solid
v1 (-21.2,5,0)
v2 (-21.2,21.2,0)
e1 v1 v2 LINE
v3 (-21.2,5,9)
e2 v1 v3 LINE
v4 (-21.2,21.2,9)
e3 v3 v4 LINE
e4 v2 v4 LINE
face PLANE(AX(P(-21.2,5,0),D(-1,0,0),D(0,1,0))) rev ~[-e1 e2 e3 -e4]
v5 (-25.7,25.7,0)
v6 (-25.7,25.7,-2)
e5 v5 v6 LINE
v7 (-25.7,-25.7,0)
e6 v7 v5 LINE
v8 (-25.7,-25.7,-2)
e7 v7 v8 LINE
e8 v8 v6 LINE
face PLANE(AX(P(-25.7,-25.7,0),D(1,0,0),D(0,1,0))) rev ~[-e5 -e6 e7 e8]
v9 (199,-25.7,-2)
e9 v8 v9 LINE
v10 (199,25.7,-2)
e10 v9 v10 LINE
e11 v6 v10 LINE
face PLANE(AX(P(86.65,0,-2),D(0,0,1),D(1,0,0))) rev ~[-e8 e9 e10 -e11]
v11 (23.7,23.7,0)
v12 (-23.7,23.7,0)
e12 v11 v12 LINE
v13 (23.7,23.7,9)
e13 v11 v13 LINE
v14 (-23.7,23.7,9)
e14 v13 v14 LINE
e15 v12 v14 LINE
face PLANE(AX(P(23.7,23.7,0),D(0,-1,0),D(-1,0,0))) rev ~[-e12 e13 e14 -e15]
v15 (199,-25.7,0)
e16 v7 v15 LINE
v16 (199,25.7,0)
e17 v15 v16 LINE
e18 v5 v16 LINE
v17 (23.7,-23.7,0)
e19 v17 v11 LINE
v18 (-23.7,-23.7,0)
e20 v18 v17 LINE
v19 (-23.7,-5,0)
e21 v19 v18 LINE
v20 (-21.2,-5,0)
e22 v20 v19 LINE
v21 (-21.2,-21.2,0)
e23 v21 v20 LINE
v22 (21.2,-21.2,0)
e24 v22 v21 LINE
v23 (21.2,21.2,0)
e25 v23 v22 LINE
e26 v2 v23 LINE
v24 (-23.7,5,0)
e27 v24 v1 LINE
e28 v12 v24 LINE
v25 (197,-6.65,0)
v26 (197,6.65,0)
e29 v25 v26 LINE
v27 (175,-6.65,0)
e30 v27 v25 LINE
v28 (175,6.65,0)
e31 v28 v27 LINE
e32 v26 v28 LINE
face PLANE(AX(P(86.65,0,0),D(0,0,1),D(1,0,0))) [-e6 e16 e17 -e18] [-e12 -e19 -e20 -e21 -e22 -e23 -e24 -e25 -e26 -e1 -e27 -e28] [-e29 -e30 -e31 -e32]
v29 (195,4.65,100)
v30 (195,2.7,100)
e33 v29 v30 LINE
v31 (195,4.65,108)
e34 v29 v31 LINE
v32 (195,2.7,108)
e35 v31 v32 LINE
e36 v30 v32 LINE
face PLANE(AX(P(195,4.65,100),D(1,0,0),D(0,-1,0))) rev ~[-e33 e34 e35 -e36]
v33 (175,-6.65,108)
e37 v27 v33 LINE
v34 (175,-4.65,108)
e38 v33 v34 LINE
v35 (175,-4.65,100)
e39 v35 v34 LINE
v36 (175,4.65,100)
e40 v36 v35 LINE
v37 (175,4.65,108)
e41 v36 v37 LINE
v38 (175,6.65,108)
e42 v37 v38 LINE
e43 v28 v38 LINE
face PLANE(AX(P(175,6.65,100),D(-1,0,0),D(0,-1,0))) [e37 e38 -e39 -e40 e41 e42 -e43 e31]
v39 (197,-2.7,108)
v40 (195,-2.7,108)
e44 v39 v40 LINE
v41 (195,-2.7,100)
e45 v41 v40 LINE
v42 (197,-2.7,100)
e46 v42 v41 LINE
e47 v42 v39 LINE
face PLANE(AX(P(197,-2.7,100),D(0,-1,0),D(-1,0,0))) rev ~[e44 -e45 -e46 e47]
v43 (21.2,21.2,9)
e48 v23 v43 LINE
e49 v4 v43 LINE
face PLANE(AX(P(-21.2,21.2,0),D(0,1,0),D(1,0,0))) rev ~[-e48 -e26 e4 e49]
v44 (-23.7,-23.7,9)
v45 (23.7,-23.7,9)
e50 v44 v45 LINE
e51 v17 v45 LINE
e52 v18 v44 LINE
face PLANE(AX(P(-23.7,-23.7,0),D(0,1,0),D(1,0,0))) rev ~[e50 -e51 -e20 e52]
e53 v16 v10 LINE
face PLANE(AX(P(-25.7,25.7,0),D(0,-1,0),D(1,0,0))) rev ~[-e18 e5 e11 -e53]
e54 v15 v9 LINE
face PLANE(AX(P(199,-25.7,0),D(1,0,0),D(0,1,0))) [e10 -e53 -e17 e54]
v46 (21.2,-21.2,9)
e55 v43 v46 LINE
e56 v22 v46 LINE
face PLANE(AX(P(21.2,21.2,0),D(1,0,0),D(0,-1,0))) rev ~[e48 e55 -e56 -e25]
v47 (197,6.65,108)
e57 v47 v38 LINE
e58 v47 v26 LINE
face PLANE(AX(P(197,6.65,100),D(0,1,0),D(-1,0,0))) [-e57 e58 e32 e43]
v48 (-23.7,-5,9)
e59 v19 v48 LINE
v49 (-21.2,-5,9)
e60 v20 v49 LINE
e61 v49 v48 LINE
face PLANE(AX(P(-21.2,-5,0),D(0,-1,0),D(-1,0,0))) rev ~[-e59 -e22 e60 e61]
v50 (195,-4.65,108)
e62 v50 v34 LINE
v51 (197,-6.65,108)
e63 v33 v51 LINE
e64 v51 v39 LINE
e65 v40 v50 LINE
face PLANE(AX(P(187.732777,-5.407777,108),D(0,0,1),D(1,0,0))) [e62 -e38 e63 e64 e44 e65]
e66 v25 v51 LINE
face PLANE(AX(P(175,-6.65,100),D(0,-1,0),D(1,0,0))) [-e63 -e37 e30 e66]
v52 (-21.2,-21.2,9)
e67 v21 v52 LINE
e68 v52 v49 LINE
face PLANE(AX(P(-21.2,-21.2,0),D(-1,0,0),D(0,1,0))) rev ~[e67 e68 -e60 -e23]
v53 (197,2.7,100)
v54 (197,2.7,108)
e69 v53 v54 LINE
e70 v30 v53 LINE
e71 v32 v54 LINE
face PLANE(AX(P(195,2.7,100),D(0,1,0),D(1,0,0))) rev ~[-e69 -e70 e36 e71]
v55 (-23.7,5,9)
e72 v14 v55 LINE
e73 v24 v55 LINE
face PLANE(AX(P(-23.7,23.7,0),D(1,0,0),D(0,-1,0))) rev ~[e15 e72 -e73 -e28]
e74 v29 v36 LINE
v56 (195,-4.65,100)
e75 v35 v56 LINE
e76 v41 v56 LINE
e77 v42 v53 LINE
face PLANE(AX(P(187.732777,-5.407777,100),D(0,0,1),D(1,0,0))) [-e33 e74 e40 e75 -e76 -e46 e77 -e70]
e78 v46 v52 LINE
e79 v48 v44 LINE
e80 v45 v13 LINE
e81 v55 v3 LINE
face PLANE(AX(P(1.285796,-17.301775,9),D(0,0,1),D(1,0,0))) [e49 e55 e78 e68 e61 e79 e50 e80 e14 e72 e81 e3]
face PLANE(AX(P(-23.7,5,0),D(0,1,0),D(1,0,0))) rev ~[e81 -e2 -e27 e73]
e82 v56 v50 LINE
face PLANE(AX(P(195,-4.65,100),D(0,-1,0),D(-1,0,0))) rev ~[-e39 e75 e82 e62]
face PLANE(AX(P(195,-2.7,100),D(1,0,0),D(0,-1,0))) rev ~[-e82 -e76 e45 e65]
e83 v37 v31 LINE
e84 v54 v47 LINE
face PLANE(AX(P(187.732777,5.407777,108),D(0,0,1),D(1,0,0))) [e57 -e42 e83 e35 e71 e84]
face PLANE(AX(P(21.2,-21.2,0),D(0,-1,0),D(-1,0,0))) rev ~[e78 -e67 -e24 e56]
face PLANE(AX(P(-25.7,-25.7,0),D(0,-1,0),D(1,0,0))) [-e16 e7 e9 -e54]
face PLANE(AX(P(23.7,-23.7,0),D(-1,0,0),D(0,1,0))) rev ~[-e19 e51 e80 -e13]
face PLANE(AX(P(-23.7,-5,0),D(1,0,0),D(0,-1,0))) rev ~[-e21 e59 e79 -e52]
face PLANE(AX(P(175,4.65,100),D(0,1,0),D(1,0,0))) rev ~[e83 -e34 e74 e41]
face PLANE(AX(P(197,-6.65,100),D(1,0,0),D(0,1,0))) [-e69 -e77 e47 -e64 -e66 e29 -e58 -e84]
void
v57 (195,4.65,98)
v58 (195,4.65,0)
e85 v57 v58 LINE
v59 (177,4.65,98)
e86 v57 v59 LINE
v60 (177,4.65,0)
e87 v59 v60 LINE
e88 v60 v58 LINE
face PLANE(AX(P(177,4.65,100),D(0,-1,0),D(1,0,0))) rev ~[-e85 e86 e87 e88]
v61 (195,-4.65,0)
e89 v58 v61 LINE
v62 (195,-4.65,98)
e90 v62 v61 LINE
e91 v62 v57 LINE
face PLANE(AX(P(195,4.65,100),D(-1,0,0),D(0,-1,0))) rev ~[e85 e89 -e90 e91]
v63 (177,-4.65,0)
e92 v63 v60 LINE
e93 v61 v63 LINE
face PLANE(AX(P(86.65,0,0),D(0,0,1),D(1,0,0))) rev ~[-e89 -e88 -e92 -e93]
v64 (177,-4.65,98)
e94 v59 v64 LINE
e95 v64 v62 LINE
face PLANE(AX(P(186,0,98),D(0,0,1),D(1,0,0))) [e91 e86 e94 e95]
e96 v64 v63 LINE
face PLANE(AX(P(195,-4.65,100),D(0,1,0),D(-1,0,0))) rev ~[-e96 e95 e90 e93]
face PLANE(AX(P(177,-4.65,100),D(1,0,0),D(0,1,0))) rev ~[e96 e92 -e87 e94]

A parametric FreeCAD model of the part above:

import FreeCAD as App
import Part
import Sketcher
from FreeCAD import Vector
Q = App.Units.Quantity

doc = App.newDocument("Part")
body = doc.addObject("PartDesign::Body", "Body")

# Sketch on XY plane
sketch1 = doc.addObject("Sketcher::SketchObject", "Sketch")
body.addObject(sketch1)
sketch1.AttachmentSupport = (doc.XY_Plane, [""])
sketch1.MapMode = "FlatFace"
sketch1.addGeometry(Part.LineSegment(Vector(-23.7, -23.7, 0), Vector(23.7, -23.7, 0)), False)
sketch1.addGeometry(Part.LineSegment(Vector(23.7, -23.7, 0), Vector(23.7, 23.7, 0)), False)
sketch1.addGeometry(Part.LineSegment(Vector(23.7, 23.7, 0), Vector(-23.7, 23.7, 0)), False)
sketch1.addGeometry(Part.LineSegment(Vector(-23.7, 23.7, 0), Vector(-23.7, 5, 0)), False)
sketch1.addGeometry(Part.LineSegment(Vector(-23.7, 5, 0), Vector(-21.2, 5, 0)), False)
sketch1.addGeometry(Part.LineSegment(Vector(-21.2, 5, 0), Vector(-21.2, 21.2, 0)), False)
sketch1.addGeometry(Part.LineSegment(Vector(-21.2, 21.2, 0), Vector(21.2, 21.2, 0)), False)
sketch1.addGeometry(Part.LineSegment(Vector(21.2, 21.2, 0), Vector(21.2, -21.2, 0)), False)
sketch1.addGeometry(Part.LineSegment(Vector(21.2, -21.2, 0), Vector(-21.2, -21.2, 0)), False)
sketch1.addGeometry(Part.LineSegment(Vector(-21.2, -21.2, 0), Vector(-21.2, -5, 0)), False)
sketch1.addGeometry(Part.LineSegment(Vector(-21.2, -5, 0), Vector(-23.7, -5, 0)), False)
sketch1.addGeometry(Part.LineSegment(Vector(-23.7, -5, 0), Vector(-23.7, -23.7, 0)), False)
sketch1.addConstraint(Sketcher.Constraint("Coincident", 0, 2, 1, 1))
sketch1.addConstraint(Sketcher.Constraint("Coincident", 1, 2, 2, 1))
sketch1.addConstraint(Sketcher.Constraint("Coincident", 2, 2, 3, 1))
sketch1.addConstraint(Sketcher.Constraint("Coincident", 3, 2, 4, 1))
sketch1.addConstraint(Sketcher.Constraint("Coincident", 4, 2, 5, 1))
sketch1.addConstraint(Sketcher.Constraint("Coincident", 5, 2, 6, 1))
sketch1.addConstraint(Sketcher.Constraint("Coincident", 6, 2, 7, 1))
sketch1.addConstraint(Sketcher.Constraint("Coincident", 7, 2, 8, 1))
sketch1.addConstraint(Sketcher.Constraint("Coincident", 8, 2, 9, 1))
sketch1.addConstraint(Sketcher.Constraint("Coincident", 9, 2, 10, 1))
sketch1.addConstraint(Sketcher.Constraint("Coincident", 10, 2, 11, 1))
sketch1.addConstraint(Sketcher.Constraint("Coincident", 11, 2, 0, 1))
sketch1.addConstraint(Sketcher.Constraint("Horizontal", 0))
sketch1.addConstraint(Sketcher.Constraint("Vertical", 1))
sketch1.addConstraint(Sketcher.Constraint("Horizontal", 2))
sketch1.addConstraint(Sketcher.Constraint("Vertical", 3))
sketch1.addConstraint(Sketcher.Constraint("Horizontal", 4))
sketch1.addConstraint(Sketcher.Constraint("Vertical", 5))
sketch1.addConstraint(Sketcher.Constraint("Horizontal", 6))
sketch1.addConstraint(Sketcher.Constraint("Vertical", 7))
sketch1.addConstraint(Sketcher.Constraint("Horizontal", 8))
sketch1.addConstraint(Sketcher.Constraint("Vertical", 9))
sketch1.addConstraint(Sketcher.Constraint("Horizontal", 10))
sketch1.addConstraint(Sketcher.Constraint("Vertical", 11))
sketch1.addConstraint(Sketcher.Constraint("Symmetric", 0, 2, 2, 2, -1, 1))
sketch1.addConstraint(Sketcher.Constraint("Symmetric", 5, 2, 7, 2, -1, 1))
sketch1.addConstraint(Sketcher.Constraint("Symmetric", 4, 2, 9, 2, -1))
sketch1.addConstraint(Sketcher.Constraint("Vertical", 3, 2, 10, 2))
sketch1.addConstraint(Sketcher.Constraint("Equal", 2, 1))
sketch1.addConstraint(Sketcher.Constraint("Equal", 8, 7))
sketch1.addConstraint(Sketcher.Constraint("DistanceX", 0, 1, 0, 2, Q("47.4 mm")))
sketch1.addConstraint(Sketcher.Constraint("DistanceX", 4, 1, 4, 2, Q("2.5 mm")))
sketch1.addConstraint(Sketcher.Constraint("DistanceY", 3, 2, 3, 1, Q("18.7 mm")))
pad1 = doc.addObject("PartDesign::Pad", "Pad")
body.addObject(pad1)
pad1.Profile = sketch1
pad1.Length = 9
body2 = doc.addObject("PartDesign::Body", "Body001")

# Sketch on XY plane
sketch2 = doc.addObject("Sketcher::SketchObject", "Sketch001")
body2.addObject(sketch2)
sketch2.AttachmentSupport = (doc.getObject("XY_Plane001"), [""])
sketch2.MapMode = "FlatFace"
sketch2.AttachmentOffset = App.Placement(Vector(0, 0, 100), App.Rotation())
sketch2.addGeometry(Part.LineSegment(Vector(195, -4.7, 0), Vector(175, -4.7, 0)), False)
sketch2.addGeometry(Part.LineSegment(Vector(175, -4.7, 0), Vector(175, -6.7, 0)), False)
sketch2.addGeometry(Part.LineSegment(Vector(175, -6.7, 0), Vector(197, -6.7, 0)), False)
sketch2.addGeometry(Part.LineSegment(Vector(197, -6.7, 0), Vector(197, -2.7, 0)), False)
sketch2.addGeometry(Part.LineSegment(Vector(197, -2.7, 0), Vector(195, -2.7, 0)), False)
sketch2.addGeometry(Part.LineSegment(Vector(195, -2.7, 0), Vector(195, -4.7, 0)), False)
sketch2.addConstraint(Sketcher.Constraint("Coincident", 0, 2, 1, 1))
sketch2.addConstraint(Sketcher.Constraint("Coincident", 1, 2, 2, 1))
sketch2.addConstraint(Sketcher.Constraint("Coincident", 2, 2, 3, 1))
sketch2.addConstraint(Sketcher.Constraint("Coincident", 3, 2, 4, 1))
sketch2.addConstraint(Sketcher.Constraint("Coincident", 4, 2, 5, 1))
sketch2.addConstraint(Sketcher.Constraint("Coincident", 5, 2, 0, 1))
sketch2.addConstraint(Sketcher.Constraint("Horizontal", 0))
sketch2.addConstraint(Sketcher.Constraint("Vertical", 1))
sketch2.addConstraint(Sketcher.Constraint("Horizontal", 2))
sketch2.addConstraint(Sketcher.Constraint("Vertical", 3))
sketch2.addConstraint(Sketcher.Constraint("Horizontal", 4))
sketch2.addConstraint(Sketcher.Constraint("Vertical", 5))
sketch2.addConstraint(Sketcher.Constraint("Equal", 4, 1))
sketch2.addConstraint(Sketcher.Constraint("DistanceX", 0, 2, 0, 1, Q("20 mm")))
sketch2.addConstraint(Sketcher.Constraint("DistanceX", 2, 1, 2, 2, Q("22 mm")))
sketch2.addConstraint(Sketcher.Constraint("DistanceX", -1, 1, 0, 2, Q("175 mm")))
sketch2.addConstraint(Sketcher.Constraint("DistanceY", 3, 1, 3, 2, Q("3.95 mm")))
sketch2.addConstraint(Sketcher.Constraint("DistanceY", 3, 2, -1, 1, Q("2.7 mm")))
pad2 = doc.addObject("PartDesign::Pad", "Pad001")
body2.addObject(pad2)
pad2.Profile = sketch2
pad2.Length = 8
body3 = doc.addObject("PartDesign::Body", "Body002")

# Sketch on XY plane
sketch3 = doc.addObject("Sketcher::SketchObject", "Sketch002")
body3.addObject(sketch3)
sketch3.AttachmentSupport = (doc.getObject("XY_Plane002"), [""])
sketch3.MapMode = "FlatFace"
sketch3.AttachmentOffset = App.Placement(Vector(0, 0, 100), App.Rotation())
sketch3.addGeometry(Part.LineSegment(Vector(195, 4.7, 0), Vector(195, 2.7, 0)), False)
sketch3.addGeometry(Part.LineSegment(Vector(195, 2.7, 0), Vector(197, 2.7, 0)), False)
sketch3.addGeometry(Part.LineSegment(Vector(197, 2.7, 0), Vector(197, 6.7, 0)), False)
sketch3.addGeometry(Part.LineSegment(Vector(197, 6.7, 0), Vector(175, 6.7, 0)), False)
sketch3.addGeometry(Part.LineSegment(Vector(175, 6.7, 0), Vector(175, 4.7, 0)), False)
sketch3.addGeometry(Part.LineSegment(Vector(175, 4.7, 0), Vector(195, 4.7, 0)), False)
sketch3.addConstraint(Sketcher.Constraint("Coincident", 0, 2, 1, 1))
sketch3.addConstraint(Sketcher.Constraint("Coincident", 1, 2, 2, 1))
sketch3.addConstraint(Sketcher.Constraint("Coincident", 2, 2, 3, 1))
sketch3.addConstraint(Sketcher.Constraint("Coincident", 3, 2, 4, 1))
sketch3.addConstraint(Sketcher.Constraint("Coincident", 4, 2, 5, 1))
sketch3.addConstraint(Sketcher.Constraint("Coincident", 5, 2, 0, 1))
sketch3.addConstraint(Sketcher.Constraint("Vertical", 0))
sketch3.addConstraint(Sketcher.Constraint("Horizontal", 1))
sketch3.addConstraint(Sketcher.Constraint("Vertical", 2))
sketch3.addConstraint(Sketcher.Constraint("Horizontal", 3))
sketch3.addConstraint(Sketcher.Constraint("Vertical", 4))
sketch3.addConstraint(Sketcher.Constraint("Horizontal", 5))
sketch3.addConstraint(Sketcher.Constraint("Equal", 1, 4))
sketch3.addConstraint(Sketcher.Constraint("DistanceX", 1, 1, 1, 2, Q("2 mm")))
sketch3.addConstraint(Sketcher.Constraint("DistanceX", 3, 2, 3, 1, Q("22 mm")))
sketch3.addConstraint(Sketcher.Constraint("DistanceX", -1, 1, 0, 2, Q("195 mm")))
sketch3.addConstraint(Sketcher.Constraint("DistanceY", 0, 2, 0, 1, Q("1.95 mm")))
sketch3.addConstraint(Sketcher.Constraint("DistanceY", -1, 1, 0, 2, Q("2.7 mm")))
pad3 = doc.addObject("PartDesign::Pad", "Pad002")
body3.addObject(pad3)
pad3.Profile = sketch3
pad3.Length = 8
body2.AllowCompound = True
doc.recompute()

boolean = doc.addObject("PartDesign::Boolean", "Boolean")
body2.addObject(boolean)
boolean.Type = "Fuse"
boolean.addObjects([body3])

# Sketch on XY plane
sketch4 = doc.addObject("Sketcher::SketchObject", "Sketch003")
body2.addObject(sketch4)
sketch4.AttachmentSupport = (doc.getObject("XY_Plane001"), [""])
sketch4.MapMode = "FlatFace"
sketch4.AttachmentOffset = App.Placement(Vector(0, 0, 100), App.Rotation())
sketch4.addGeometry(Part.LineSegment(Vector(177, 5, 0), Vector(177, -5, 0)), False)
sketch4.addGeometry(Part.LineSegment(Vector(177, -5, 0), Vector(195, -5, 0)), False)
sketch4.addGeometry(Part.LineSegment(Vector(195, -5, 0), Vector(195, 5, 0)), False)
sketch4.addGeometry(Part.LineSegment(Vector(195, 5, 0), Vector(177, 5, 0)), False)
sketch4.addConstraint(Sketcher.Constraint("Coincident", 0, 2, 1, 1))
sketch4.addConstraint(Sketcher.Constraint("Coincident", 1, 2, 2, 1))
sketch4.addConstraint(Sketcher.Constraint("Coincident", 2, 2, 3, 1))
sketch4.addConstraint(Sketcher.Constraint("Coincident", 3, 2, 0, 1))
sketch4.addConstraint(Sketcher.Constraint("Vertical", 0))
sketch4.addConstraint(Sketcher.Constraint("Horizontal", 1))
sketch4.addConstraint(Sketcher.Constraint("Vertical", 2))
sketch4.addConstraint(Sketcher.Constraint("Horizontal", 3))
sketch4.addConstraint(Sketcher.Constraint("DistanceX", 1, 1, 1, 2, Q("18 mm")))
sketch4.addConstraint(Sketcher.Constraint("DistanceY", 0, 2, 0, 1, Q("9.3 mm")))
sketch4.addConstraint(Sketcher.Constraint("DistanceX", -1, 1, 0, 2, Q("177 mm")))
sketch4.addConstraint(Sketcher.Constraint("DistanceY", 0, 2, -1, 1, Q("4.65 mm")))
pad4 = doc.addObject("PartDesign::Pad", "Pad003")
body2.addObject(pad4)
pad4.Profile = sketch4
pad4.Length = 2
pad4.Reversed = True

# Sketch on XY plane
sketch5 = doc.addObject("Sketcher::SketchObject", "Sketch004")
body2.addObject(sketch5)
sketch5.AttachmentSupport = (doc.getObject("XY_Plane001"), [""])
sketch5.MapMode = "FlatFace"
sketch5.AttachmentOffset = App.Placement(Vector(0, 0, 100), App.Rotation())
sketch5.addGeometry(Part.LineSegment(Vector(197, 7, 0), Vector(175, 7, 0)), False)
sketch5.addGeometry(Part.LineSegment(Vector(175, 7, 0), Vector(175, -7, 0)), False)
sketch5.addGeometry(Part.LineSegment(Vector(175, -7, 0), Vector(197, -7, 0)), False)
sketch5.addGeometry(Part.LineSegment(Vector(197, -7, 0), Vector(197, 7, 0)), False)
sketch5.addGeometry(Part.LineSegment(Vector(195, -5, 0), Vector(177, -5, 0)), False)
sketch5.addGeometry(Part.LineSegment(Vector(177, -5, 0), Vector(177, 5, 0)), False)
sketch5.addGeometry(Part.LineSegment(Vector(177, 5, 0), Vector(195, 5, 0)), False)
sketch5.addGeometry(Part.LineSegment(Vector(195, 5, 0), Vector(195, -5, 0)), False)
sketch5.addConstraint(Sketcher.Constraint("Coincident", 0, 2, 1, 1))
sketch5.addConstraint(Sketcher.Constraint("Coincident", 1, 2, 2, 1))
sketch5.addConstraint(Sketcher.Constraint("Coincident", 2, 2, 3, 1))
sketch5.addConstraint(Sketcher.Constraint("Coincident", 3, 2, 0, 1))
sketch5.addConstraint(Sketcher.Constraint("Coincident", 4, 2, 5, 1))
sketch5.addConstraint(Sketcher.Constraint("Coincident", 5, 2, 6, 1))
sketch5.addConstraint(Sketcher.Constraint("Coincident", 6, 2, 7, 1))
sketch5.addConstraint(Sketcher.Constraint("Coincident", 7, 2, 4, 1))
sketch5.addConstraint(Sketcher.Constraint("Horizontal", 0))
sketch5.addConstraint(Sketcher.Constraint("Vertical", 1))
sketch5.addConstraint(Sketcher.Constraint("Horizontal", 2))
sketch5.addConstraint(Sketcher.Constraint("Vertical", 3))
sketch5.addConstraint(Sketcher.Constraint("Horizontal", 4))
sketch5.addConstraint(Sketcher.Constraint("Vertical", 5))
sketch5.addConstraint(Sketcher.Constraint("Horizontal", 6))
sketch5.addConstraint(Sketcher.Constraint("Vertical", 7))
sketch5.addConstraint(Sketcher.Constraint("DistanceX", 0, 2, 0, 1, Q("22 mm")))
sketch5.addConstraint(Sketcher.Constraint("DistanceX", 4, 2, 4, 1, Q("18 mm")))
sketch5.addConstraint(Sketcher.Constraint("DistanceY", 1, 2, 1, 1, Q("13.3 mm")))
sketch5.addConstraint(Sketcher.Constraint("DistanceY", 5, 1, 5, 2, Q("9.3 mm")))
sketch5.addConstraint(Sketcher.Constraint("DistanceX", -1, 1, 0, 2, Q("175 mm")))
sketch5.addConstraint(Sketcher.Constraint("DistanceX", -1, 1, 4, 2, Q("177 mm")))
sketch5.addConstraint(Sketcher.Constraint("DistanceY", 1, 2, 4, 2, Q("2 mm")))
sketch5.addConstraint(Sketcher.Constraint("DistanceY", -1, 1, 0, 2, Q("6.65 mm")))
pad5 = doc.addObject("PartDesign::Pad", "Pad004")
body2.addObject(pad5)
pad5.Profile = sketch5
pad5.Length = 100
pad5.Reversed = True
body.AllowCompound = True
doc.recompute()

boolean2 = doc.addObject("PartDesign::Boolean", "Boolean001")
body.addObject(boolean2)
boolean2.Type = "Fuse"
boolean2.addObjects([body2])

# Sketch on XY plane
sketch6 = doc.addObject("Sketcher::SketchObject", "Sketch005")
body.addObject(sketch6)
sketch6.AttachmentSupport = (doc.XY_Plane, [""])
sketch6.MapMode = "FlatFace"
sketch6.addGeometry(Part.LineSegment(Vector(-26, 26, 0), Vector(-26, -26, 0)), False)
sketch6.addGeometry(Part.LineSegment(Vector(-26, -26, 0), Vector(199, -26, 0)), False)
sketch6.addGeometry(Part.LineSegment(Vector(199, -26, 0), Vector(199, 26, 0)), False)
sketch6.addGeometry(Part.LineSegment(Vector(199, 26, 0), Vector(-26, 26, 0)), False)
sketch6.addConstraint(Sketcher.Constraint("Coincident", 0, 2, 1, 1))
sketch6.addConstraint(Sketcher.Constraint("Coincident", 1, 2, 2, 1))
sketch6.addConstraint(Sketcher.Constraint("Coincident", 2, 2, 3, 1))
sketch6.addConstraint(Sketcher.Constraint("Coincident", 3, 2, 0, 1))
sketch6.addConstraint(Sketcher.Constraint("Vertical", 0))
sketch6.addConstraint(Sketcher.Constraint("Horizontal", 1))
sketch6.addConstraint(Sketcher.Constraint("Vertical", 2))
sketch6.addConstraint(Sketcher.Constraint("Horizontal", 3))
sketch6.addConstraint(Sketcher.Constraint("DistanceX", 1, 1, 1, 2, Q("224.7 mm")))
sketch6.addConstraint(Sketcher.Constraint("DistanceY", 0, 2, 0, 1, Q("51.4 mm")))
sketch6.addConstraint(Sketcher.Constraint("DistanceX", -1, 1, 1, 2, Q("199 mm")))
sketch6.addConstraint(Sketcher.Constraint("DistanceY", 0, 2, -1, 1, Q("25.7 mm")))
pad6 = doc.addObject("PartDesign::Pad", "Pad005")
body.addObject(pad6)
pad6.Profile = sketch6
pad6.Length = 2
pad6.Reversed = True

doc.recompute()
